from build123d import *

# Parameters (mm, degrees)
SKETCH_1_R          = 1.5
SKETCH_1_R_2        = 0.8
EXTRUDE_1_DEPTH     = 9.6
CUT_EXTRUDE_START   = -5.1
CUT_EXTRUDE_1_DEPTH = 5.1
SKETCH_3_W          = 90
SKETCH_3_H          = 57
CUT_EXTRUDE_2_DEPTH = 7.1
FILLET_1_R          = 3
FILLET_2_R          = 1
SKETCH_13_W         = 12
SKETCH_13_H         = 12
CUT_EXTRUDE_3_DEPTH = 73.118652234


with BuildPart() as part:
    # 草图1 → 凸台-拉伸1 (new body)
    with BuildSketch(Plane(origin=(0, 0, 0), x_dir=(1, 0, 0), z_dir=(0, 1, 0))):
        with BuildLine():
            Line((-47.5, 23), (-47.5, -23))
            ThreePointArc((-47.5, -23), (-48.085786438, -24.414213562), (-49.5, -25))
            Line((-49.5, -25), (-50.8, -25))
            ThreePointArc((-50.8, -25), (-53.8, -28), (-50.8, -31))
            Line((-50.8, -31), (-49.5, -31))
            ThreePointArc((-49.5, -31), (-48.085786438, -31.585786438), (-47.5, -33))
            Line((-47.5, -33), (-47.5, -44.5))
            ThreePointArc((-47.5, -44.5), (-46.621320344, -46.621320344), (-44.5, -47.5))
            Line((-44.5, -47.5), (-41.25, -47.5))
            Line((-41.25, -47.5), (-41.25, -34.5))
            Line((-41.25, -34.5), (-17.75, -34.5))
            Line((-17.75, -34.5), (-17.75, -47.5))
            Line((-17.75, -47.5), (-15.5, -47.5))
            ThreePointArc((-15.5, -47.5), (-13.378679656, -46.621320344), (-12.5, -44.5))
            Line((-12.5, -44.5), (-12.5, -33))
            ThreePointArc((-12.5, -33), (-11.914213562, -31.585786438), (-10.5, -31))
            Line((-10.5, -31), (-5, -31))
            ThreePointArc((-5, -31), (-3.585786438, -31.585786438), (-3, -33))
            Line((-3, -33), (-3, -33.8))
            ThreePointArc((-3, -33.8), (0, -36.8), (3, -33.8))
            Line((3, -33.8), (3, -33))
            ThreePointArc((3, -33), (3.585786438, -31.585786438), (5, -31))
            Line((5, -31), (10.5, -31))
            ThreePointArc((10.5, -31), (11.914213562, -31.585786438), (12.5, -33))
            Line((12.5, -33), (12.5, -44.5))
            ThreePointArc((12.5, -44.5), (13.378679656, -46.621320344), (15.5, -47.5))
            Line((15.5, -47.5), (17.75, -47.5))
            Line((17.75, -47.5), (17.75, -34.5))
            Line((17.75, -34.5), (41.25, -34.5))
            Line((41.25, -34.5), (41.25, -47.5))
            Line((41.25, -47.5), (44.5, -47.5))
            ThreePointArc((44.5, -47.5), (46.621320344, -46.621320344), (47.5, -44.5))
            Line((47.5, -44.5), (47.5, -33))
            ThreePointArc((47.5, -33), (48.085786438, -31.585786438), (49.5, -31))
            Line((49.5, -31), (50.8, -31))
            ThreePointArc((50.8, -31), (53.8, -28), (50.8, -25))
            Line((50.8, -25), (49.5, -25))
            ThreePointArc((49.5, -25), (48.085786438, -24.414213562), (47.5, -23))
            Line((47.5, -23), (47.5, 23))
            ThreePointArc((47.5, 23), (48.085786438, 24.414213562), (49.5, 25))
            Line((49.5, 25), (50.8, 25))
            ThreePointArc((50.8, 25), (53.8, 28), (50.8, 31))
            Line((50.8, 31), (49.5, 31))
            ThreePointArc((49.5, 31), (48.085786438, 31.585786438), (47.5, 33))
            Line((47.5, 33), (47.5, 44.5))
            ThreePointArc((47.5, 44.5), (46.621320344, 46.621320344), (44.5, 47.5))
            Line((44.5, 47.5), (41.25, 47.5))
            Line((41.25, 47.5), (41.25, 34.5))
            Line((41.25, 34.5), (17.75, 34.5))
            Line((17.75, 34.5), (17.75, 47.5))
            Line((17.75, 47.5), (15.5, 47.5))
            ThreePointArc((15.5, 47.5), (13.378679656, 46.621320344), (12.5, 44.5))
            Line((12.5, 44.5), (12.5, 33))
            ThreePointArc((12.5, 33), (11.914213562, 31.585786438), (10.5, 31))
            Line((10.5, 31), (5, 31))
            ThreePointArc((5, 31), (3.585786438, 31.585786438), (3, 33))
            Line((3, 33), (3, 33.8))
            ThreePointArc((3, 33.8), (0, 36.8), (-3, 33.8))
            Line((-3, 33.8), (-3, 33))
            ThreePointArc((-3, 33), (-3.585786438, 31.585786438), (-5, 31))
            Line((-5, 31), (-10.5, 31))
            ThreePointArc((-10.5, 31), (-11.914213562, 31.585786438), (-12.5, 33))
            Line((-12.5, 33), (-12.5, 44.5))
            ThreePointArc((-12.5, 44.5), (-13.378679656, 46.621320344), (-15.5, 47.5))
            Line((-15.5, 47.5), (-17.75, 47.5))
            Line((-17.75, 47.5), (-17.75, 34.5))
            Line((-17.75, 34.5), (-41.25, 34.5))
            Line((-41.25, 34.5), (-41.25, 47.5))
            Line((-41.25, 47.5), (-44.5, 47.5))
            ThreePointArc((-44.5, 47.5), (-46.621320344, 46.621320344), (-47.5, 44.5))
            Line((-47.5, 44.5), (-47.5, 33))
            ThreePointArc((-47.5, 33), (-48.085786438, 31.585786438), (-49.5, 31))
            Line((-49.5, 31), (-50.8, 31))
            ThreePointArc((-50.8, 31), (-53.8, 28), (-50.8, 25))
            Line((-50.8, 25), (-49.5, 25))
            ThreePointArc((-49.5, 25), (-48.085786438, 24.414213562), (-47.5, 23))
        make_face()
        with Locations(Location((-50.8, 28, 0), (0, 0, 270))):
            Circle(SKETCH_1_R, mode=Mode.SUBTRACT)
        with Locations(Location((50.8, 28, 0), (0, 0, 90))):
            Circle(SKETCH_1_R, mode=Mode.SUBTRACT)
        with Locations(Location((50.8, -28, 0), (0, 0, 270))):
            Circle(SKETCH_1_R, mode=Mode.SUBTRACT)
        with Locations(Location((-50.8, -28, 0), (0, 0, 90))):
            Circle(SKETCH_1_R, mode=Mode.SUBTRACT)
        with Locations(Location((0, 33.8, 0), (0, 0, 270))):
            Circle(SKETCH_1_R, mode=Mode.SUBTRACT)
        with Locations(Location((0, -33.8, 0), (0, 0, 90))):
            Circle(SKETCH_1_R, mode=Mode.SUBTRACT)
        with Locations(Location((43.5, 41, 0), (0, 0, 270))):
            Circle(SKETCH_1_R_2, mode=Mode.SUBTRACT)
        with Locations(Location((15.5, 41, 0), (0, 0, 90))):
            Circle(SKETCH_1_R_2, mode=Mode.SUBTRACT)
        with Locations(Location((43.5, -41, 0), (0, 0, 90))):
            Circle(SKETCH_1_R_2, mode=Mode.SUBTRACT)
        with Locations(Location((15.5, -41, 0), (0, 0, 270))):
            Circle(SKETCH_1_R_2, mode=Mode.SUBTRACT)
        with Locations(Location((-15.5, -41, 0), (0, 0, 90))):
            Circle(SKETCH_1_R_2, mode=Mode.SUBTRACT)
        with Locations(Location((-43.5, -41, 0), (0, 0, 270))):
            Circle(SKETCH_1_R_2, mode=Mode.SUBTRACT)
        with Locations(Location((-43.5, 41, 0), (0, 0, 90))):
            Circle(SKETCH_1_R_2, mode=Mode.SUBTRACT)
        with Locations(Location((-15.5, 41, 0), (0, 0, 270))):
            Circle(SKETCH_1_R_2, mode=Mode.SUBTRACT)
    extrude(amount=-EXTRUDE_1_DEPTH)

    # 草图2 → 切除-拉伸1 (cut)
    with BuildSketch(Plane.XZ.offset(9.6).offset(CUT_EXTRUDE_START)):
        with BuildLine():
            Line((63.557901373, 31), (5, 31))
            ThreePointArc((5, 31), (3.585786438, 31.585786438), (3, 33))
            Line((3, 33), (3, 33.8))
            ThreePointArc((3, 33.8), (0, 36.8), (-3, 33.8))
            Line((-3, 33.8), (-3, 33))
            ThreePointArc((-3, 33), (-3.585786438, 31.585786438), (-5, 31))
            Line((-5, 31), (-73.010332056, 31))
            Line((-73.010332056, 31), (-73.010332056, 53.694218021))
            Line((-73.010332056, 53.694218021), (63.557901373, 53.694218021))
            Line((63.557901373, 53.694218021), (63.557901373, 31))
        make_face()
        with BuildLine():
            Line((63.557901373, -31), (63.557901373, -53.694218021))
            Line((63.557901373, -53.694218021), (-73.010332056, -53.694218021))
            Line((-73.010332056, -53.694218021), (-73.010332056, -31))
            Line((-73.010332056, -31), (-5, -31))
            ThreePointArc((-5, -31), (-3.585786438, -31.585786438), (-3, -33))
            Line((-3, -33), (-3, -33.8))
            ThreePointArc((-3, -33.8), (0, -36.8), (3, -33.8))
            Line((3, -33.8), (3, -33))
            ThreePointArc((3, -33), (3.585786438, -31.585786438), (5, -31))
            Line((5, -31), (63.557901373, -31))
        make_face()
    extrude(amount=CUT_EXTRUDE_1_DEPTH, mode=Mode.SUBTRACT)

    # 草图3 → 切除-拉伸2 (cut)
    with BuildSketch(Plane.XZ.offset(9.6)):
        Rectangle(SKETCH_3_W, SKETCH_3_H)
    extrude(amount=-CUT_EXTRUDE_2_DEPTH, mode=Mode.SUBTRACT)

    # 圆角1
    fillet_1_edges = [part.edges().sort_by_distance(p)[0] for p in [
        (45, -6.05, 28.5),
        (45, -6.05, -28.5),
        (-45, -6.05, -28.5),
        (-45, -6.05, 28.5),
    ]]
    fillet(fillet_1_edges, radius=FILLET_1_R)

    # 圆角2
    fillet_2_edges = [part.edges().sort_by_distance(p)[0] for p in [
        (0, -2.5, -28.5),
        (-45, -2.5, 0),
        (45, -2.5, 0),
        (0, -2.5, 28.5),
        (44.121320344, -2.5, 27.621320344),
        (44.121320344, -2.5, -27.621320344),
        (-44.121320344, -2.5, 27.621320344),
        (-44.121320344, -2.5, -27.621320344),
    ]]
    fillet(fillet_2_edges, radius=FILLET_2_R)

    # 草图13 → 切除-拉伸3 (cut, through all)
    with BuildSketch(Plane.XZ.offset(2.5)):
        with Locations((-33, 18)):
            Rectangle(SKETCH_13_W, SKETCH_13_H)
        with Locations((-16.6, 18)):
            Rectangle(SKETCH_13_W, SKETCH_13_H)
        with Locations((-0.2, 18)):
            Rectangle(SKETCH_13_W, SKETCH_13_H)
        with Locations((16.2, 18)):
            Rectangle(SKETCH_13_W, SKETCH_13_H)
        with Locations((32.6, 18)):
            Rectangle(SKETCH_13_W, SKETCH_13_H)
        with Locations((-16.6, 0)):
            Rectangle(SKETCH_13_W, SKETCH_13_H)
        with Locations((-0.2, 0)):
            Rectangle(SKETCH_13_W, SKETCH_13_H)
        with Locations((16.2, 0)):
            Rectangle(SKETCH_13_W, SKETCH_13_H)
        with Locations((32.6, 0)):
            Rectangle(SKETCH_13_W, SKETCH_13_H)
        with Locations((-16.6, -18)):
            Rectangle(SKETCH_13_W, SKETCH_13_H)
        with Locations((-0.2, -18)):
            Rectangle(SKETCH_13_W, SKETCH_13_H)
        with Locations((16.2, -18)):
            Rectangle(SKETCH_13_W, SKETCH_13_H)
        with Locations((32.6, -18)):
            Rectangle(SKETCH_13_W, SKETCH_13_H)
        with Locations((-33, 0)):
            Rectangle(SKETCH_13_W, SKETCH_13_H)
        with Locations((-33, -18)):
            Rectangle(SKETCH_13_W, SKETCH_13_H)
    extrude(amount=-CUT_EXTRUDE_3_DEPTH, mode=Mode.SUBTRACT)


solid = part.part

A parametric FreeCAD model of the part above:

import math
import FreeCAD as App
import Part
import Sketcher
Q = App.Units.Quantity


def edges_at(feature, points):
    """Names of the edges that pass closest to the given points."""
    edges = feature.Shape.Edges
    near = lambda p: min(range(len(edges)), key=lambda i: edges[i].distToShape(Part.Vertex(*p))[0])
    return sorted({f"Edge{near(p) + 1}" for p in points})


def add_polygon(sketch, points):
    """Adds a closed chain of lines whose ends are joined by coincident constraints."""
    first, n = sketch.GeometryCount, len(points)
    for a, b in zip(points, points[1:] + points[:1]):
        sketch.addGeometry(Part.LineSegment(App.Vector(*a, 0), App.Vector(*b, 0)), False)
    for i in range(n):
        sketch.addConstraint(Sketcher.Constraint("Coincident", first + i, 2, first + (i + 1) % n, 1))

doc = App.newDocument("Part")
body = doc.addObject("PartDesign::Body", "Body")

# Sketch on XZ plane
sketch1 = body.newObject("Sketcher::SketchObject", "Sketch")
sketch1.AttachmentSupport = (doc.getObject("XZ_Plane"), [""])
sketch1.MapMode = "FlatFace"
sketch1.addGeometry(Part.LineSegment(App.Vector(-47.5, -23, 0), App.Vector(-47.5, 23, 0)), False)
sketch1.addGeometry(Part.ArcOfCircle(Part.Circle(App.Vector(-49.5, 23, 0), App.Vector(0, 0, 1), 2), math.radians(0), math.radians(90)), False)
sketch1.addGeometry(Part.LineSegment(App.Vector(-49.5, 25, 0), App.Vector(-50.8, 25, 0)), False)
sketch1.addGeometry(Part.ArcOfCircle(Part.Circle(App.Vector(-50.8, 28, 0), App.Vector(0, 0, 1), 3), math.radians(90), math.radians(270)), False)
sketch1.addGeometry(Part.LineSegment(App.Vector(-50.8, 31, 0), App.Vector(-49.5, 31, 0)), False)
sketch1.addGeometry(Part.ArcOfCircle(Part.Circle(App.Vector(-49.5, 33, 0), App.Vector(0, 0, 1), 2), math.radians(-90), math.radians(0)), False)
sketch1.addGeometry(Part.LineSegment(App.Vector(-47.5, 33, 0), App.Vector(-47.5, 44.5, 0)), False)
sketch1.addGeometry(Part.ArcOfCircle(Part.Circle(App.Vector(-44.5, 44.5, 0), App.Vector(0, 0, 1), 3), math.radians(90), math.radians(180)), False)
sketch1.addGeometry(Part.LineSegment(App.Vector(-44.5, 47.5, 0), App.Vector(-41.2, 47.5, 0)), False)
sketch1.addGeometry(Part.LineSegment(App.Vector(-41.2, 47.5, 0), App.Vector(-41.2, 34.5, 0)), False)
sketch1.addGeometry(Part.LineSegment(App.Vector(-41.2, 34.5, 0), App.Vector(-17.8, 34.5, 0)), False)
sketch1.addGeometry(Part.LineSegment(App.Vector(-17.8, 34.5, 0), App.Vector(-17.8, 47.5, 0)), False)
sketch1.addGeometry(Part.LineSegment(App.Vector(-17.8, 47.5, 0), App.Vector(-15.5, 47.5, 0)), False)
sketch1.addGeometry(Part.ArcOfCircle(Part.Circle(App.Vector(-15.5, 44.5, 0), App.Vector(0, 0, 1), 3), math.radians(0), math.radians(90)), False)
sketch1.addGeometry(Part.LineSegment(App.Vector(-12.5, 44.5, 0), App.Vector(-12.5, 33, 0)), False)
sketch1.addGeometry(Part.ArcOfCircle(Part.Circle(App.Vector(-10.5, 33, 0), App.Vector(0, 0, 1), 2), math.radians(-180), math.radians(-90)), False)
sketch1.addGeometry(Part.LineSegment(App.Vector(-10.5, 31, 0), App.Vector(-5, 31, 0)), False)
sketch1.addGeometry(Part.ArcOfCircle(Part.Circle(App.Vector(-5, 33, 0), App.Vector(0, 0, 1), 2), math.radians(-90), math.radians(0)), False)
sketch1.addGeometry(Part.LineSegment(App.Vector(-3, 33, 0), App.Vector(-3, 33.8, 0)), False)
sketch1.addGeometry(Part.ArcOfCircle(Part.Circle(App.Vector(0, 33.8, 0), App.Vector(0, 0, 1), 3), math.radians(0), math.radians(180)), False)
sketch1.addGeometry(Part.LineSegment(App.Vector(3, 33.8, 0), App.Vector(3, 33, 0)), False)
sketch1.addGeometry(Part.ArcOfCircle(Part.Circle(App.Vector(5, 33, 0), App.Vector(0, 0, 1), 2), math.radians(-180), math.radians(-90)), False)
sketch1.addGeometry(Part.LineSegment(App.Vector(5, 31, 0), App.Vector(10.5, 31, 0)), False)
sketch1.addGeometry(Part.ArcOfCircle(Part.Circle(App.Vector(10.5, 33, 0), App.Vector(0, 0, 1), 2), math.radians(-90), math.radians(0)), False)
sketch1.addGeometry(Part.LineSegment(App.Vector(12.5, 33, 0), App.Vector(12.5, 44.5, 0)), False)
sketch1.addGeometry(Part.ArcOfCircle(Part.Circle(App.Vector(15.5, 44.5, 0), App.Vector(0, 0, 1), 3), math.radians(90), math.radians(180)), False)
sketch1.addGeometry(Part.LineSegment(App.Vector(15.5, 47.5, 0), App.Vector(17.8, 47.5, 0)), False)
sketch1.addGeometry(Part.LineSegment(App.Vector(17.8, 47.5, 0), App.Vector(17.8, 34.5, 0)), False)
sketch1.addGeometry(Part.LineSegment(App.Vector(17.8, 34.5, 0), App.Vector(41.2, 34.5, 0)), False)
sketch1.addGeometry(Part.LineSegment(App.Vector(41.2, 34.5, 0), App.Vector(41.2, 47.5, 0)), False)
sketch1.addGeometry(Part.LineSegment(App.Vector(41.2, 47.5, 0), App.Vector(44.5, 47.5, 0)), False)
sketch1.addGeometry(Part.ArcOfCircle(Part.Circle(App.Vector(44.5, 44.5, 0), App.Vector(0, 0, 1), 3), math.radians(0), math.radians(90)), False)
sketch1.addGeometry(Part.LineSegment(App.Vector(47.5, 44.5, 0), App.Vector(47.5, 33, 0)), False)
sketch1.addGeometry(Part.ArcOfCircle(Part.Circle(App.Vector(49.5, 33, 0), App.Vector(0, 0, 1), 2), math.radians(-180), math.radians(-90)), False)
sketch1.addGeometry(Part.LineSegment(App.Vector(49.5, 31, 0), App.Vector(50.8, 31, 0)), False)
sketch1.addGeometry(Part.ArcOfCircle(Part.Circle(App.Vector(50.8, 28, 0), App.Vector(0, 0, 1), 3), math.radians(-90), math.radians(90)), False)
sketch1.addGeometry(Part.LineSegment(App.Vector(50.8, 25, 0), App.Vector(49.5, 25, 0)), False)
sketch1.addGeometry(Part.ArcOfCircle(Part.Circle(App.Vector(49.5, 23, 0), App.Vector(0, 0, 1), 2), math.radians(90), math.radians(180)), False)
sketch1.addGeometry(Part.LineSegment(App.Vector(47.5, 23, 0), App.Vector(47.5, -23, 0)), False)
sketch1.addGeometry(Part.ArcOfCircle(Part.Circle(App.Vector(49.5, -23, 0), App.Vector(0, 0, 1), 2), math.radians(-180), math.radians(-90)), False)
sketch1.addGeometry(Part.LineSegment(App.Vector(49.5, -25, 0), App.Vector(50.8, -25, 0)), False)
sketch1.addGeometry(Part.ArcOfCircle(Part.Circle(App.Vector(50.8, -28, 0), App.Vector(0, 0, 1), 3), math.radians(-90), math.radians(90)), False)
sketch1.addGeometry(Part.LineSegment(App.Vector(50.8, -31, 0), App.Vector(49.5, -31, 0)), False)
sketch1.addGeometry(Part.ArcOfCircle(Part.Circle(App.Vector(49.5, -33, 0), App.Vector(0, 0, 1), 2), math.radians(90), math.radians(180)), False)
sketch1.addGeometry(Part.LineSegment(App.Vector(47.5, -33, 0), App.Vector(47.5, -44.5, 0)), False)
sketch1.addGeometry(Part.ArcOfCircle(Part.Circle(App.Vector(44.5, -44.5, 0), App.Vector(0, 0, 1), 3), math.radians(-90), math.radians(0)), False)
sketch1.addGeometry(Part.LineSegment(App.Vector(44.5, -47.5, 0), App.Vector(41.2, -47.5, 0)), False)
sketch1.addGeometry(Part.LineSegment(App.Vector(41.2, -47.5, 0), App.Vector(41.2, -34.5, 0)), False)
sketch1.addGeometry(Part.LineSegment(App.Vector(41.2, -34.5, 0), App.Vector(17.8, -34.5, 0)), False)
sketch1.addGeometry(Part.LineSegment(App.Vector(17.8, -34.5, 0), App.Vector(17.8, -47.5, 0)), False)
sketch1.addGeometry(Part.LineSegment(App.Vector(17.8, -47.5, 0), App.Vector(15.5, -47.5, 0)), False)
sketch1.addGeometry(Part.ArcOfCircle(Part.Circle(App.Vector(15.5, -44.5, 0), App.Vector(0, 0, 1), 3), math.radians(180), math.radians(270)), False)
sketch1.addGeometry(Part.LineSegment(App.Vector(12.5, -44.5, 0), App.Vector(12.5, -33, 0)), False)
sketch1.addGeometry(Part.ArcOfCircle(Part.Circle(App.Vector(10.5, -33, 0), App.Vector(0, 0, 1), 2), math.radians(0), math.radians(90)), False)
sketch1.addGeometry(Part.LineSegment(App.Vector(10.5, -31, 0), App.Vector(5, -31, 0)), False)
sketch1.addGeometry(Part.ArcOfCircle(Part.Circle(App.Vector(5, -33, 0), App.Vector(0, 0, 1), 2), math.radians(90), math.radians(180)), False)
sketch1.addGeometry(Part.LineSegment(App.Vector(3, -33, 0), App.Vector(3, -33.8, 0)), False)
sketch1.addGeometry(Part.ArcOfCircle(Part.Circle(App.Vector(0, -33.8, 0), App.Vector(0, 0, 1), 3), math.radians(180), math.radians(360)), False)
sketch1.addGeometry(Part.LineSegment(App.Vector(-3, -33.8, 0), App.Vector(-3, -33, 0)), False)
sketch1.addGeometry(Part.ArcOfCircle(Part.Circle(App.Vector(-5, -33, 0), App.Vector(0, 0, 1), 2), math.radians(0), math.radians(90)), False)
sketch1.addGeometry(Part.LineSegment(App.Vector(-5, -31, 0), App.Vector(-10.5, -31, 0)), False)
sketch1.addGeometry(Part.ArcOfCircle(Part.Circle(App.Vector(-10.5, -33, 0), App.Vector(0, 0, 1), 2), math.radians(90), math.radians(180)), False)
sketch1.addGeometry(Part.LineSegment(App.Vector(-12.5, -33, 0), App.Vector(-12.5, -44.5, 0)), False)
sketch1.addGeometry(Part.ArcOfCircle(Part.Circle(App.Vector(-15.5, -44.5, 0), App.Vector(0, 0, 1), 3), math.radians(-90), math.radians(0)), False)
sketch1.addGeometry(Part.LineSegment(App.Vector(-15.5, -47.5, 0), App.Vector(-17.8, -47.5, 0)), False)
sketch1.addGeometry(Part.LineSegment(App.Vector(-17.8, -47.5, 0), App.Vector(-17.8, -34.5, 0)), False)
sketch1.addGeometry(Part.LineSegment(App.Vector(-17.8, -34.5, 0), App.Vector(-41.2, -34.5, 0)), False)
sketch1.addGeometry(Part.LineSegment(App.Vector(-41.2, -34.5, 0), App.Vector(-41.2, -47.5, 0)), False)
sketch1.addGeometry(Part.LineSegment(App.Vector(-41.2, -47.5, 0), App.Vector(-44.5, -47.5, 0)), False)
sketch1.addGeometry(Part.ArcOfCircle(Part.Circle(App.Vector(-44.5, -44.5, 0), App.Vector(0, 0, 1), 3), math.radians(180), math.radians(270)), False)
sketch1.addGeometry(Part.LineSegment(App.Vector(-47.5, -44.5, 0), App.Vector(-47.5, -33, 0)), False)
sketch1.addGeometry(Part.ArcOfCircle(Part.Circle(App.Vector(-49.5, -33, 0), App.Vector(0, 0, 1), 2), math.radians(0), math.radians(90)), False)
sketch1.addGeometry(Part.LineSegment(App.Vector(-49.5, -31, 0), App.Vector(-50.8, -31, 0)), False)
sketch1.addGeometry(Part.ArcOfCircle(Part.Circle(App.Vector(-50.8, -28, 0), App.Vector(0, 0, 1), 3), math.radians(90), math.radians(270)), False)
sketch1.addGeometry(Part.LineSegment(App.Vector(-50.8, -25, 0), App.Vector(-49.5, -25, 0)), False)
sketch1.addGeometry(Part.ArcOfCircle(Part.Circle(App.Vector(-49.5, -23, 0), App.Vector(0, 0, 1), 2), math.radians(-90), math.radians(0)), False)
sketch1.addGeometry(Part.Circle(App.Vector(-43.5, 41, 0), App.Vector(0, 0, 1), 0.8), False)
sketch1.addGeometry(Part.Circle(App.Vector(-50.8, 28, 0), App.Vector(0, 0, 1), 1.5), False)
sketch1.addGeometry(Part.Circle(App.Vector(-15.5, 41, 0), App.Vector(0, 0, 1), 0.8), False)
sketch1.addGeometry(Part.Circle(App.Vector(0, 33.8, 0), App.Vector(0, 0, 1), 1.5), False)
sketch1.addGeometry(Part.Circle(App.Vector(15.5, 41, 0), App.Vector(0, 0, 1), 0.8), False)
sketch1.addGeometry(Part.Circle(App.Vector(43.5, 41, 0), App.Vector(0, 0, 1), 0.8), False)
sketch1.addGeometry(Part.Circle(App.Vector(50.8, 28, 0), App.Vector(0, 0, 1), 1.5), False)
sketch1.addGeometry(Part.Circle(App.Vector(-50.8, -28, 0), App.Vector(0, 0, 1), 1.5), False)
sketch1.addGeometry(Part.Circle(App.Vector(-43.5, -41, 0), App.Vector(0, 0, 1), 0.8), False)
sketch1.addGeometry(Part.Circle(App.Vector(-15.5, -41, 0), App.Vector(0, 0, 1), 0.8), False)
sketch1.addGeometry(Part.Circle(App.Vector(0, -33.8, 0), App.Vector(0, 0, 1), 1.5), False)
sketch1.addGeometry(Part.Circle(App.Vector(15.5, -41, 0), App.Vector(0, 0, 1), 0.8), False)
sketch1.addGeometry(Part.Circle(App.Vector(50.8, -28, 0), App.Vector(0, 0, 1), 1.5), False)
sketch1.addGeometry(Part.Circle(App.Vector(43.5, -41, 0), App.Vector(0, 0, 1), 0.8), False)
sketch1.addConstraint(Sketcher.Constraint("Tangent", 0, 2, 1, 1))
sketch1.addConstraint(Sketcher.Constraint("Tangent", 1, 2, 2, 1))
sketch1.addConstraint(Sketcher.Constraint("Tangent", 2, 2, 3, 2))
sketch1.addConstraint(Sketcher.Constraint("Tangent", 3, 1, 4, 1))
sketch1.addConstraint(Sketcher.Constraint("Tangent", 4, 2, 5, 1))
sketch1.addConstraint(Sketcher.Constraint("Tangent", 5, 2, 6, 1))
sketch1.addConstraint(Sketcher.Constraint("Tangent", 6, 2, 7, 2))
sketch1.addConstraint(Sketcher.Constraint("Tangent", 7, 1, 8, 1))
sketch1.addConstraint(Sketcher.Constraint("Coincident", 8, 2, 9, 1))
sketch1.addConstraint(Sketcher.Constraint("Coincident", 9, 2, 10, 1))
sketch1.addConstraint(Sketcher.Constraint("Coincident", 10, 2, 11, 1))
sketch1.addConstraint(Sketcher.Constraint("Coincident", 11, 2, 12, 1))
sketch1.addConstraint(Sketcher.Constraint("Tangent", 12, 2, 13, 2))
sketch1.addConstraint(Sketcher.Constraint("Tangent", 13, 1, 14, 1))
sketch1.addConstraint(Sketcher.Constraint("Tangent", 14, 2, 15, 1))
sketch1.addConstraint(Sketcher.Constraint("Tangent", 15, 2, 16, 1))
sketch1.addConstraint(Sketcher.Constraint("Tangent", 16, 2, 17, 1))
sketch1.addConstraint(Sketcher.Constraint("Tangent", 17, 2, 18, 1))
sketch1.addConstraint(Sketcher.Constraint("Tangent", 18, 2, 19, 2))
sketch1.addConstraint(Sketcher.Constraint("Tangent", 19, 1, 20, 1))
sketch1.addConstraint(Sketcher.Constraint("Tangent", 20, 2, 21, 1))
sketch1.addConstraint(Sketcher.Constraint("Tangent", 21, 2, 22, 1))
sketch1.addConstraint(Sketcher.Constraint("Tangent", 22, 2, 23, 1))
sketch1.addConstraint(Sketcher.Constraint("Tangent", 23, 2, 24, 1))
sketch1.addConstraint(Sketcher.Constraint("Tangent", 24, 2, 25, 2))
sketch1.addConstraint(Sketcher.Constraint("Tangent", 25, 1, 26, 1))
sketch1.addConstraint(Sketcher.Constraint("Coincident", 26, 2, 27, 1))
sketch1.addConstraint(Sketcher.Constraint("Coincident", 27, 2, 28, 1))
sketch1.addConstraint(Sketcher.Constraint("Coincident", 28, 2, 29, 1))
sketch1.addConstraint(Sketcher.Constraint("Coincident", 29, 2, 30, 1))
sketch1.addConstraint(Sketcher.Constraint("Tangent", 30, 2, 31, 2))
sketch1.addConstraint(Sketcher.Constraint("Tangent", 31, 1, 32, 1))
sketch1.addConstraint(Sketcher.Constraint("Tangent", 32, 2, 33, 1))
sketch1.addConstraint(Sketcher.Constraint("Tangent", 33, 2, 34, 1))
sketch1.addConstraint(Sketcher.Constraint("Tangent", 34, 2, 35, 2))
sketch1.addConstraint(Sketcher.Constraint("Tangent", 35, 1, 36, 1))
sketch1.addConstraint(Sketcher.Constraint("Tangent", 36, 2, 37, 1))
sketch1.addConstraint(Sketcher.Constraint("Tangent", 37, 2, 38, 1))
sketch1.addConstraint(Sketcher.Constraint("Tangent", 38, 2, 39, 1))
sketch1.addConstraint(Sketcher.Constraint("Tangent", 39, 2, 40, 1))
sketch1.addConstraint(Sketcher.Constraint("Tangent", 40, 2, 41, 2))
sketch1.addConstraint(Sketcher.Constraint("Tangent", 41, 1, 42, 1))
sketch1.addConstraint(Sketcher.Constraint("Tangent", 42, 2, 43, 1))
sketch1.addConstraint(Sketcher.Constraint("Tangent", 43, 2, 44, 1))
sketch1.addConstraint(Sketcher.Constraint("Tangent", 44, 2, 45, 2))
sketch1.addConstraint(Sketcher.Constraint("Tangent", 45, 1, 46, 1))
sketch1.addConstraint(Sketcher.Constraint("Coincident", 46, 2, 47, 1))
sketch1.addConstraint(Sketcher.Constraint("Coincident", 47, 2, 48, 1))
sketch1.addConstraint(Sketcher.Constraint("Coincident", 48, 2, 49, 1))
sketch1.addConstraint(Sketcher.Constraint("Coincident", 49, 2, 50, 1))
sketch1.addConstraint(Sketcher.Constraint("Tangent", 50, 2, 51, 2))
sketch1.addConstraint(Sketcher.Constraint("Tangent", 51, 1, 52, 1))
sketch1.addConstraint(Sketcher.Constraint("Tangent", 52, 2, 53, 1))
sketch1.addConstraint(Sketcher.Constraint("Tangent", 53, 2, 54, 1))
sketch1.addConstraint(Sketcher.Constraint("Tangent", 54, 2, 55, 1))
sketch1.addConstraint(Sketcher.Constraint("Tangent", 55, 2, 56, 1))
sketch1.addConstraint(Sketcher.Constraint("Tangent", 56, 2, 57, 2))
sketch1.addConstraint(Sketcher.Constraint("Tangent", 57, 1, 58, 1))
sketch1.addConstraint(Sketcher.Constraint("Tangent", 58, 2, 59, 1))
sketch1.addConstraint(Sketcher.Constraint("Tangent", 59, 2, 60, 1))
sketch1.addConstraint(Sketcher.Constraint("Tangent", 60, 2, 61, 1))
sketch1.addConstraint(Sketcher.Constraint("Tangent", 61, 2, 62, 1))
sketch1.addConstraint(Sketcher.Constraint("Tangent", 62, 2, 63, 2))
sketch1.addConstraint(Sketcher.Constraint("Tangent", 63, 1, 64, 1))
sketch1.addConstraint(Sketcher.Constraint("Coincident", 64, 2, 65, 1))
sketch1.addConstraint(Sketcher.Constraint("Coincident", 65, 2, 66, 1))
sketch1.addConstraint(Sketcher.Constraint("Coincident", 66, 2, 67, 1))
sketch1.addConstraint(Sketcher.Constraint("Coincident", 67, 2, 68, 1))
sketch1.addConstraint(Sketcher.Constraint("Tangent", 68, 2, 69, 2))
sketch1.addConstraint(Sketcher.Constraint("Tangent", 69, 1, 70, 1))
sketch1.addConstraint(Sketcher.Constraint("Tangent", 70, 2, 71, 1))
sketch1.addConstraint(Sketcher.Constraint("Tangent", 71, 2, 72, 1))
sketch1.addConstraint(Sketcher.Constraint("Tangent", 72, 2, 73, 2))
sketch1.addConstraint(Sketcher.Constraint("Tangent", 73, 1, 74, 1))
sketch1.addConstraint(Sketcher.Constraint("Tangent", 74, 2, 75, 1))
sketch1.addConstraint(Sketcher.Constraint("Tangent", 75, 2, 0, 1))
sketch1.addConstraint(Sketcher.Constraint("Vertical", 0))
sketch1.addConstraint(Sketcher.Constraint("Horizontal", 2))
sketch1.addConstraint(Sketcher.Constraint("Horizontal", 4))
sketch1.addConstraint(Sketcher.Constraint("Vertical", 6))
sketch1.addConstraint(Sketcher.Constraint("Horizontal", 8))
sketch1.addConstraint(Sketcher.Constraint("Vertical", 9))
sketch1.addConstraint(Sketcher.Constraint("Horizontal", 10))
sketch1.addConstraint(Sketcher.Constraint("Vertical", 11))
sketch1.addConstraint(Sketcher.Constraint("Horizontal", 12))
sketch1.addConstraint(Sketcher.Constraint("Vertical", 14))
sketch1.addConstraint(Sketcher.Constraint("Horizontal", 16))
sketch1.addConstraint(Sketcher.Constraint("Vertical", 18))
sketch1.addConstraint(Sketcher.Constraint("Vertical", 20))
sketch1.addConstraint(Sketcher.Constraint("Horizontal", 22))
sketch1.addConstraint(Sketcher.Constraint("Vertical", 24))
sketch1.addConstraint(Sketcher.Constraint("Horizontal", 26))
sketch1.addConstraint(Sketcher.Constraint("Vertical", 27))
sketch1.addConstraint(Sketcher.Constraint("Horizontal", 28))
sketch1.addConstraint(Sketcher.Constraint("Vertical", 29))
sketch1.addConstraint(Sketcher.Constraint("Horizontal", 30))
sketch1.addConstraint(Sketcher.Constraint("Vertical", 32))
sketch1.addConstraint(Sketcher.Constraint("Horizontal", 34))
sketch1.addConstraint(Sketcher.Constraint("Horizontal", 36))
sketch1.addConstraint(Sketcher.Constraint("Vertical", 38))
sketch1.addConstraint(Sketcher.Constraint("Horizontal", 40))
sketch1.addConstraint(Sketcher.Constraint("Horizontal", 42))
sketch1.addConstraint(Sketcher.Constraint("Vertical", 44))
sketch1.addConstraint(Sketcher.Constraint("Horizontal", 46))
sketch1.addConstraint(Sketcher.Constraint("Vertical", 47))
sketch1.addConstraint(Sketcher.Constraint("Horizontal", 48))
sketch1.addConstraint(Sketcher.Constraint("Vertical", 49))
sketch1.addConstraint(Sketcher.Constraint("Horizontal", 50))
sketch1.addConstraint(Sketcher.Constraint("Vertical", 52))
sketch1.addConstraint(Sketcher.Constraint("Horizontal", 54))
sketch1.addConstraint(Sketcher.Constraint("Vertical", 56))
sketch1.addConstraint(Sketcher.Constraint("Vertical", 58))
sketch1.addConstraint(Sketcher.Constraint("Horizontal", 60))
sketch1.addConstraint(Sketcher.Constraint("Vertical", 62))
sketch1.addConstraint(Sketcher.Constraint("Horizontal", 64))
sketch1.addConstraint(Sketcher.Constraint("Vertical", 65))
sketch1.addConstraint(Sketcher.Constraint("Horizontal", 66))
sketch1.addConstraint(Sketcher.Constraint("Vertical", 67))
sketch1.addConstraint(Sketcher.Constraint("Horizontal", 68))
sketch1.addConstraint(Sketcher.Constraint("Vertical", 70))
sketch1.addConstraint(Sketcher.Constraint("Horizontal", 72))
sketch1.addConstraint(Sketcher.Constraint("Horizontal", 74))
sketch1.addConstraint(Sketcher.Constraint("Coincident", 77, 3, 3, 3))
sketch1.addConstraint(Sketcher.Constraint("Coincident", 79, 3, 19, 3))
sketch1.addConstraint(Sketcher.Constraint("Coincident", 82, 3, 35, 3))
sketch1.addConstraint(Sketcher.Constraint("Coincident", 83, 3, 73, 3))
sketch1.addConstraint(Sketcher.Constraint("Coincident", 86, 3, 57, 3))
sketch1.addConstraint(Sketcher.Constraint("Coincident", 88, 3, 41, 3))
sketch1.addConstraint(Sketcher.Constraint("Equal", 1, 5))
sketch1.addConstraint(Sketcher.Constraint("Equal", 3, 7))
sketch1.addConstraint(Sketcher.Constraint("Equal", 7, 13))
sketch1.addConstraint(Sketcher.Constraint("Equal", 5, 15))
sketch1.addConstraint(Sketcher.Constraint("Equal", 15, 17))
sketch1.addConstraint(Sketcher.Constraint("Equal", 13, 19))
sketch1.addConstraint(Sketcher.Constraint("Equal", 17, 21))
sketch1.addConstraint(Sketcher.Constraint("Equal", 21, 23))
sketch1.addConstraint(Sketcher.Constraint("Equal", 19, 25))
sketch1.addConstraint(Sketcher.Constraint("Equal", 25, 31))
sketch1.addConstraint(Sketcher.Constraint("Equal", 23, 33))
sketch1.addConstraint(Sketcher.Constraint("Equal", 31, 35))
sketch1.addConstraint(Sketcher.Constraint("Equal", 33, 37))
sketch1.addConstraint(Sketcher.Constraint("Equal", 37, 39))
sketch1.addConstraint(Sketcher.Constraint("Equal", 35, 41))
sketch1.addConstraint(Sketcher.Constraint("Equal", 39, 43))
sketch1.addConstraint(Sketcher.Constraint("Equal", 41, 45))
sketch1.addConstraint(Sketcher.Constraint("Equal", 45, 51))
sketch1.addConstraint(Sketcher.Constraint("Equal", 43, 53))
sketch1.addConstraint(Sketcher.Constraint("Equal", 53, 55))
sketch1.addConstraint(Sketcher.Constraint("Equal", 51, 57))
sketch1.addConstraint(Sketcher.Constraint("Equal", 55, 59))
sketch1.addConstraint(Sketcher.Constraint("Equal", 59, 61))
sketch1.addConstraint(Sketcher.Constraint("Equal", 57, 63))
sketch1.addConstraint(Sketcher.Constraint("Equal", 63, 69))
sketch1.addConstraint(Sketcher.Constraint("Equal", 61, 71))
sketch1.addConstraint(Sketcher.Constraint("Equal", 69, 73))
sketch1.addConstraint(Sketcher.Constraint("Equal", 71, 75))
sketch1.addConstraint(Sketcher.Constraint("Equal", 76, 78))
sketch1.addConstraint(Sketcher.Constraint("Equal", 77, 79))
sketch1.addConstraint(Sketcher.Constraint("Equal", 78, 80))
sketch1.addConstraint(Sketcher.Constraint("Equal", 80, 81))
sketch1.addConstraint(Sketcher.Constraint("Equal", 79, 82))
sketch1.addConstraint(Sketcher.Constraint("Equal", 82, 83))
sketch1.addConstraint(Sketcher.Constraint("Equal", 81, 84))
sketch1.addConstraint(Sketcher.Constraint("Equal", 84, 85))
sketch1.addConstraint(Sketcher.Constraint("Equal", 83, 86))
sketch1.addConstraint(Sketcher.Constraint("Equal", 85, 87))
sketch1.addConstraint(Sketcher.Constraint("Equal", 86, 88))
sketch1.addConstraint(Sketcher.Constraint("Equal", 87, 89))
sketch1.addConstraint(Sketcher.Constraint("Symmetric", 1, 3, 39, 3, -1, 1))
sketch1.addConstraint(Sketcher.Constraint("Symmetric", 7, 3, 45, 3, -1, 1))
sketch1.addConstraint(Sketcher.Constraint("Symmetric", 13, 3, 51, 3, -1, 1))
sketch1.addConstraint(Sketcher.Constraint("Symmetric", 17, 3, 55, 3, -1, 1))
sketch1.addConstraint(Sketcher.Constraint("Symmetric", 23, 3, 61, 3, -1, 1))
sketch1.addConstraint(Sketcher.Constraint("Symmetric", 31, 3, 69, 3, -1, 1))
sketch1.addConstraint(Sketcher.Constraint("Symmetric", 35, 3, 73, 3, -1, 1))
sketch1.addConstraint(Sketcher.Constraint("Symmetric", 81, 3, 84, 3, -1, 1))
sketch1.addConstraint(Sketcher.Constraint("Symmetric", 80, 3, 85, 3, -1, 1))
sketch1.addConstraint(Sketcher.Constraint("Symmetric", 78, 3, 87, 3, -1, 1))
sketch1.addConstraint(Sketcher.Constraint("Symmetric", 76, 3, 89, 3, -1, 1))
sketch1.addConstraint(Sketcher.Constraint("Symmetric", 9, 2, 47, 2, -1, 1))
sketch1.addConstraint(Sketcher.Constraint("Symmetric", 26, 2, 64, 2, -1, 1))
sketch1.addConstraint(Sketcher.Constraint("Symmetric", 28, 2, 66, 2, -1, 1))
sketch1.addConstraint(Sketcher.Constraint("Symmetric", 17, 3, 21, 3, -2))
sketch1.addConstraint(Sketcher.Constraint("Symmetric", 13, 3, 25, 3, -2))
sketch1.addConstraint(Sketcher.Constraint("Symmetric", 7, 3, 31, 3, -2))
sketch1.addConstraint(Sketcher.Constraint("Symmetric", 3, 3, 35, 3, -2))
sketch1.addConstraint(Sketcher.Constraint("Symmetric", 78, 3, 80, 3, -2))
sketch1.addConstraint(Sketcher.Constraint("Symmetric", 76, 3, 81, 3, -2))
sketch1.addConstraint(Sketcher.Constraint("Symmetric", 10, 2, 27, 2, -2))
sketch1.addConstraint(Sketcher.Constraint("Horizontal", 7, 3, 13, 3))
sketch1.addConstraint(Sketcher.Constraint("Horizontal", 5, 3, 15, 3))
sketch1.addConstraint(Sketcher.Constraint("Horizontal", 76, 3, 78, 3))
sketch1.addConstraint(Sketcher.Constraint("Vertical", 1, 3, 5, 3))
sketch1.addConstraint(Sketcher.Constraint("Vertical", 35, 3, 41, 3))
sketch1.addConstraint(Sketcher.Constraint("Vertical", 63, 3, 78, 3))
sketch1.addConstraint(Sketcher.Constraint("Vertical", 29, 2, 46, 2))
sketch1.addConstraint(Sketcher.Constraint("Vertical", 27, 2, 48, 2))
sketch1.addConstraint(Sketcher.Constraint("Equal", 20, 56))
sketch1.addConstraint(Sketcher.Constraint("Diameter", 77, Q("3 mm")))
sketch1.addConstraint(Sketcher.Constraint("Radius", 1, Q("2 mm")))
sketch1.addConstraint(Sketcher.Constraint("Radius", 3, Q("3 mm")))
sketch1.addConstraint(Sketcher.Constraint("Diameter", 76, Q("1.6 mm")))
sketch1.addConstraint(Sketcher.Constraint("DistanceY", 0, 1, 0, 2, Q("46 mm")))
sketch1.addConstraint(Sketcher.Constraint("DistanceY", 9, 2, 9, 1, Q("13 mm")))
sketch1.addConstraint(Sketcher.Constraint("DistanceX", 2, 2, 2, 1, Q("1.3 mm")))
sketch1.addConstraint(Sketcher.Constraint("DistanceX", 10, 1, 10, 2, Q("23.5 mm")))
sketch1.addConstraint(Sketcher.Constraint("DistanceX", 16, 1, 16, 2, Q("5.5 mm")))
sketch1.addConstraint(Sketcher.Constraint("DistanceY", 6, 1, 6, 2, Q("11.5 mm")))
sketch1.addConstraint(Sketcher.Constraint("DistanceY", 18, 1, 18, 2, Q("0.8 mm")))
sketch1.addConstraint(Sketcher.Constraint("DistanceY", -1, 1, 76, 3, Q("41 mm")))
sketch1.addConstraint(Sketcher.Constraint("DistanceX", 8, 1, 8, 2, Q("3.25 mm")))
sketch1.addConstraint(Sketcher.Constraint("DistanceX", 12, 1, 12, 2, Q("2.25 mm")))
sketch1.addConstraint(Sketcher.Constraint("DistanceX", 76, 3, -1, 1, Q("43.5 mm")))
pad1 = body.newObject("PartDesign::Pad", "Pad")
pad1.Profile = sketch1
pad1.Length = 9.6

# Sketch on XZ plane
sketch2 = body.newObject("Sketcher::SketchObject", "Sketch001")
sketch2.AttachmentSupport = (doc.getObject("XZ_Plane"), [""])
sketch2.MapMode = "FlatFace"
sketch2.AttachmentOffset = App.Placement(App.Vector(0, 0, 4.5), App.Rotation())
sketch2.addGeometry(Part.LineSegment(App.Vector(5, 31, 0), App.Vector(63.6, 31, 0)), False)
sketch2.addGeometry(Part.LineSegment(App.Vector(63.6, 31, 0), App.Vector(63.6, 53.7, 0)), False)
sketch2.addGeometry(Part.LineSegment(App.Vector(63.6, 53.7, 0), App.Vector(-73, 53.7, 0)), False)
sketch2.addGeometry(Part.LineSegment(App.Vector(-73, 53.7, 0), App.Vector(-73, 31, 0)), False)
sketch2.addGeometry(Part.LineSegment(App.Vector(-73, 31, 0), App.Vector(-5, 31, 0)), False)
sketch2.addGeometry(Part.ArcOfCircle(Part.Circle(App.Vector(-5, 33, 0), App.Vector(0, 0, 1), 2), math.radians(-90), math.radians(0)), False)
sketch2.addGeometry(Part.LineSegment(App.Vector(-3, 33, 0), App.Vector(-3, 33.8, 0)), False)
sketch2.addGeometry(Part.ArcOfCircle(Part.Circle(App.Vector(0, 33.8, 0), App.Vector(0, 0, 1), 3), math.radians(0), math.radians(180)), False)
sketch2.addGeometry(Part.LineSegment(App.Vector(3, 33.8, 0), App.Vector(3, 33, 0)), False)
sketch2.addGeometry(Part.ArcOfCircle(Part.Circle(App.Vector(5, 33, 0), App.Vector(0, 0, 1), 2), math.radians(-180), math.radians(-90)), False)
sketch2.addGeometry(Part.LineSegment(App.Vector(63.6, -53.7, 0), App.Vector(63.6, -31, 0)), False)
sketch2.addGeometry(Part.LineSegment(App.Vector(63.6, -31, 0), App.Vector(5, -31, 0)), False)
sketch2.addGeometry(Part.ArcOfCircle(Part.Circle(App.Vector(5, -33, 0), App.Vector(0, 0, 1), 2), math.radians(90), math.radians(180)), False)
sketch2.addGeometry(Part.LineSegment(App.Vector(3, -33, 0), App.Vector(3, -33.8, 0)), False)
sketch2.addGeometry(Part.ArcOfCircle(Part.Circle(App.Vector(0, -33.8, 0), App.Vector(0, 0, 1), 3), math.radians(180), math.radians(360)), False)
sketch2.addGeometry(Part.LineSegment(App.Vector(-3, -33.8, 0), App.Vector(-3, -33, 0)), False)
sketch2.addGeometry(Part.ArcOfCircle(Part.Circle(App.Vector(-5, -33, 0), App.Vector(0, 0, 1), 2), math.radians(0), math.radians(90)), False)
sketch2.addGeometry(Part.LineSegment(App.Vector(-5, -31, 0), App.Vector(-73, -31, 0)), False)
sketch2.addGeometry(Part.LineSegment(App.Vector(-73, -31, 0), App.Vector(-73, -53.7, 0)), False)
sketch2.addGeometry(Part.LineSegment(App.Vector(-73, -53.7, 0), App.Vector(63.6, -53.7, 0)), False)
sketch2.addConstraint(Sketcher.Constraint("Coincident", 0, 2, 1, 1))
sketch2.addConstraint(Sketcher.Constraint("Coincident", 1, 2, 2, 1))
sketch2.addConstraint(Sketcher.Constraint("Coincident", 2, 2, 3, 1))
sketch2.addConstraint(Sketcher.Constraint("Coincident", 3, 2, 4, 1))
sketch2.addConstraint(Sketcher.Constraint("Tangent", 4, 2, 5, 1))
sketch2.addConstraint(Sketcher.Constraint("Tangent", 5, 2, 6, 1))
sketch2.addConstraint(Sketcher.Constraint("Tangent", 6, 2, 7, 2))
sketch2.addConstraint(Sketcher.Constraint("Tangent", 7, 1, 8, 1))
sketch2.addConstraint(Sketcher.Constraint("Tangent", 8, 2, 9, 1))
sketch2.addConstraint(Sketcher.Constraint("Tangent", 9, 2, 0, 1))
sketch2.addConstraint(Sketcher.Constraint("Coincident", 10, 2, 11, 1))
sketch2.addConstraint(Sketcher.Constraint("Tangent", 11, 2, 12, 1))
sketch2.addConstraint(Sketcher.Constraint("Tangent", 12, 2, 13, 1))
sketch2.addConstraint(Sketcher.Constraint("Tangent", 13, 2, 14, 2))
sketch2.addConstraint(Sketcher.Constraint("Tangent", 14, 1, 15, 1))
sketch2.addConstraint(Sketcher.Constraint("Tangent", 15, 2, 16, 1))
sketch2.addConstraint(Sketcher.Constraint("Tangent", 16, 2, 17, 1))
sketch2.addConstraint(Sketcher.Constraint("Coincident", 17, 2, 18, 1))
sketch2.addConstraint(Sketcher.Constraint("Coincident", 18, 2, 19, 1))
sketch2.addConstraint(Sketcher.Constraint("Coincident", 19, 2, 10, 1))
sketch2.addConstraint(Sketcher.Constraint("Horizontal", 0))
sketch2.addConstraint(Sketcher.Constraint("Vertical", 1))
sketch2.addConstraint(Sketcher.Constraint("Horizontal", 2))
sketch2.addConstraint(Sketcher.Constraint("Vertical", 3))
sketch2.addConstraint(Sketcher.Constraint("Horizontal", 4))
sketch2.addConstraint(Sketcher.Constraint("Vertical", 6))
sketch2.addConstraint(Sketcher.Constraint("Vertical", 8))
sketch2.addConstraint(Sketcher.Constraint("Vertical", 10))
sketch2.addConstraint(Sketcher.Constraint("Horizontal", 11))
sketch2.addConstraint(Sketcher.Constraint("Vertical", 13))
sketch2.addConstraint(Sketcher.Constraint("Vertical", 15))
sketch2.addConstraint(Sketcher.Constraint("Horizontal", 17))
sketch2.addConstraint(Sketcher.Constraint("Vertical", 18))
sketch2.addConstraint(Sketcher.Constraint("Horizontal", 19))
sketch2.addConstraint(Sketcher.Constraint("Equal", 5, 9))
sketch2.addConstraint(Sketcher.Constraint("Equal", 9, 12))
sketch2.addConstraint(Sketcher.Constraint("Equal", 7, 14))
sketch2.addConstraint(Sketcher.Constraint("Equal", 12, 16))
sketch2.addConstraint(Sketcher.Constraint("Symmetric", 5, 3, 12, 3, -1, 1))
sketch2.addConstraint(Sketcher.Constraint("Symmetric", 5, 3, 9, 3, -2))
sketch2.addConstraint(Sketcher.Constraint("Symmetric", 3, 2, 17, 2, -1))
sketch2.addConstraint(Sketcher.Constraint("Symmetric", 1, 2, 19, 2, -1))
sketch2.addConstraint(Sketcher.Constraint("Equal", 8, 13))
sketch2.addConstraint(Sketcher.Constraint("Radius", 5, Q("2 mm")))
sketch2.addConstraint(Sketcher.Constraint("Radius", 7, Q("3 mm")))
sketch2.addConstraint(Sketcher.Constraint("DistanceY", 6, 1, 6, 2, Q("0.8 mm")))
sketch2.addConstraint(Sketcher.Constraint("DistanceY", -1, 1, 5, 3, Q("33 mm")))
sketch2.addConstraint(Sketcher.Constraint("DistanceX", 0, 1, 0, 2, Q("58.557901 mm")))
sketch2.addConstraint(Sketcher.Constraint("DistanceY", 1, 1, 1, 2, Q("22.694218 mm")))
sketch2.addConstraint(Sketcher.Constraint("DistanceX", 2, 2, 2, 1, Q("136.568233 mm")))
pocket1 = body.newObject("PartDesign::Pocket", "Pocket")
pocket1.Profile = sketch2
pocket1.Length = 5.1
pocket1.Reversed = True

# Sketch on XZ plane
sketch3 = body.newObject("Sketcher::SketchObject", "Sketch002")
sketch3.AttachmentSupport = (doc.getObject("XZ_Plane"), [""])
sketch3.MapMode = "FlatFace"
sketch3.AttachmentOffset = App.Placement(App.Vector(0, 0, 9.6), App.Rotation())
add_polygon(sketch3, [(-45, 28), (-45, -28), (45, -28), (45, 28)])  # lines 0-3
sketch3.addConstraint(Sketcher.Constraint("Vertical", 0))
sketch3.addConstraint(Sketcher.Constraint("Horizontal", 1))
sketch3.addConstraint(Sketcher.Constraint("Vertical", 2))
sketch3.addConstraint(Sketcher.Constraint("Horizontal", 3))
sketch3.addConstraint(Sketcher.Constraint("Symmetric", 0, 2, 2, 2, -1, 1))
sketch3.addConstraint(Sketcher.Constraint("DistanceX", 1, 1, 1, 2, Q("90 mm")))
sketch3.addConstraint(Sketcher.Constraint("DistanceY", 0, 2, 0, 1, Q("57 mm")))
pocket2 = body.newObject("PartDesign::Pocket", "Pocket001")
pocket2.Profile = sketch3
pocket2.Length = 7.1
doc.recompute()

fillet = body.newObject("PartDesign::Fillet", "Fillet")
fillet.Base = (pocket2, edges_at(pocket2, [
    (45, -6.05, 28.5),
    (45, -6.05, -28.5),
    (-45, -6.05, -28.5),
    (-45, -6.05, 28.5),
]))
fillet.Radius = 3
doc.recompute()

fillet2 = body.newObject("PartDesign::Fillet", "Fillet001")
fillet2.Base = (fillet, edges_at(fillet, [
    (0, -2.5, -28.5),
    (-45, -2.5, 0),
    (45, -2.5, 0),
    (0, -2.5, 28.5),
    (44.121, -2.5, 27.621),
    (44.121, -2.5, -27.621),
    (-44.121, -2.5, 27.621),
    (-44.121, -2.5, -27.621),
]))
fillet2.Radius = 1

# Sketch on XZ plane
sketch4 = body.newObject("Sketcher::SketchObject", "Sketch003")
sketch4.AttachmentSupport = (doc.getObject("XZ_Plane"), [""])
sketch4.MapMode = "FlatFace"
sketch4.AttachmentOffset = App.Placement(App.Vector(0, 0, 2.5), App.Rotation())
add_polygon(sketch4, [(-39, 24), (-39, 12), (-27, 12), (-27, 24)])  # lines 0-3
add_polygon(sketch4, [(-23, 24), (-23, 12), (-11, 12), (-11, 24)])  # lines 4-7
add_polygon(sketch4, [(-6, 24), (-6, 12), (6, 12), (6, 24)])  # lines 8-11
add_polygon(sketch4, [(10, 24), (10, 12), (22, 12), (22, 24)])  # lines 12-15
add_polygon(sketch4, [(27, 24), (27, 12), (39, 12), (39, 24)])  # lines 16-19
add_polygon(sketch4, [(-23, 6), (-23, -6), (-11, -6), (-11, 6)])  # lines 20-23
add_polygon(sketch4, [(-6, 6), (-6, -6), (6, -6), (6, 6)])  # lines 24-27
add_polygon(sketch4, [(10, 6), (10, -6), (22, -6), (22, 6)])  # lines 28-31
add_polygon(sketch4, [(27, 6), (27, -6), (39, -6), (39, 6)])  # lines 32-35
add_polygon(sketch4, [(-23, -12), (-23, -24), (-11, -24), (-11, -12)])  # lines 36-39
add_polygon(sketch4, [(-6, -12), (-6, -24), (6, -24), (6, -12)])  # lines 40-43
add_polygon(sketch4, [(10, -12), (10, -24), (22, -24), (22, -12)])  # lines 44-47
add_polygon(sketch4, [(27, -12), (27, -24), (39, -24), (39, -12)])  # lines 48-51
add_polygon(sketch4, [(-39, 6), (-39, -6), (-27, -6), (-27, 6)])  # lines 52-55
add_polygon(sketch4, [(-39, -12), (-39, -24), (-27, -24), (-27, -12)])  # lines 56-59
sketch4.addConstraint(Sketcher.Constraint("Vertical", 0))
sketch4.addConstraint(Sketcher.Constraint("Horizontal", 1))
sketch4.addConstraint(Sketcher.Constraint("Vertical", 2))
sketch4.addConstraint(Sketcher.Constraint("Horizontal", 3))
sketch4.addConstraint(Sketcher.Constraint("Vertical", 4))
sketch4.addConstraint(Sketcher.Constraint("Horizontal", 5))
sketch4.addConstraint(Sketcher.Constraint("Vertical", 6))
sketch4.addConstraint(Sketcher.Constraint("Horizontal", 7))
sketch4.addConstraint(Sketcher.Constraint("Vertical", 8))
sketch4.addConstraint(Sketcher.Constraint("Horizontal", 9))
sketch4.addConstraint(Sketcher.Constraint("Vertical", 10))
sketch4.addConstraint(Sketcher.Constraint("Horizontal", 11))
sketch4.addConstraint(Sketcher.Constraint("Vertical", 12))
sketch4.addConstraint(Sketcher.Constraint("Horizontal", 13))
sketch4.addConstraint(Sketcher.Constraint("Vertical", 14))
sketch4.addConstraint(Sketcher.Constraint("Horizontal", 15))
sketch4.addConstraint(Sketcher.Constraint("Vertical", 16))
sketch4.addConstraint(Sketcher.Constraint("Horizontal", 17))
sketch4.addConstraint(Sketcher.Constraint("Vertical", 18))
sketch4.addConstraint(Sketcher.Constraint("Horizontal", 19))
sketch4.addConstraint(Sketcher.Constraint("Vertical", 20))
sketch4.addConstraint(Sketcher.Constraint("Horizontal", 21))
sketch4.addConstraint(Sketcher.Constraint("Vertical", 22))
sketch4.addConstraint(Sketcher.Constraint("Horizontal", 23))
sketch4.addConstraint(Sketcher.Constraint("Vertical", 24))
sketch4.addConstraint(Sketcher.Constraint("Horizontal", 25))
sketch4.addConstraint(Sketcher.Constraint("Vertical", 26))
sketch4.addConstraint(Sketcher.Constraint("Horizontal", 27))
sketch4.addConstraint(Sketcher.Constraint("Vertical", 28))
sketch4.addConstraint(Sketcher.Constraint("Horizontal", 29))
sketch4.addConstraint(Sketcher.Constraint("Vertical", 30))
sketch4.addConstraint(Sketcher.Constraint("Horizontal", 31))
sketch4.addConstraint(Sketcher.Constraint("Vertical", 32))
sketch4.addConstraint(Sketcher.Constraint("Horizontal", 33))
sketch4.addConstraint(Sketcher.Constraint("Vertical", 34))
sketch4.addConstraint(Sketcher.Constraint("Horizontal", 35))
sketch4.addConstraint(Sketcher.Constraint("Vertical", 36))
sketch4.addConstraint(Sketcher.Constraint("Horizontal", 37))
sketch4.addConstraint(Sketcher.Constraint("Vertical", 38))
sketch4.addConstraint(Sketcher.Constraint("Horizontal", 39))
sketch4.addConstraint(Sketcher.Constraint("Vertical", 40))
sketch4.addConstraint(Sketcher.Constraint("Horizontal", 41))
sketch4.addConstraint(Sketcher.Constraint("Vertical", 42))
sketch4.addConstraint(Sketcher.Constraint("Horizontal", 43))
sketch4.addConstraint(Sketcher.Constraint("Vertical", 44))
sketch4.addConstraint(Sketcher.Constraint("Horizontal", 45))
sketch4.addConstraint(Sketcher.Constraint("Vertical", 46))
sketch4.addConstraint(Sketcher.Constraint("Horizontal", 47))
sketch4.addConstraint(Sketcher.Constraint("Vertical", 48))
sketch4.addConstraint(Sketcher.Constraint("Horizontal", 49))
sketch4.addConstraint(Sketcher.Constraint("Vertical", 50))
sketch4.addConstraint(Sketcher.Constraint("Horizontal", 51))
sketch4.addConstraint(Sketcher.Constraint("Vertical", 52))
sketch4.addConstraint(Sketcher.Constraint("Horizontal", 53))
sketch4.addConstraint(Sketcher.Constraint("Vertical", 54))
sketch4.addConstraint(Sketcher.Constraint("Horizontal", 55))
sketch4.addConstraint(Sketcher.Constraint("Vertical", 56))
sketch4.addConstraint(Sketcher.Constraint("Horizontal", 57))
sketch4.addConstraint(Sketcher.Constraint("Vertical", 58))
sketch4.addConstraint(Sketcher.Constraint("Horizontal", 59))
sketch4.addConstraint(Sketcher.Constraint("Symmetric", 7, 2, 36, 2, -1))
sketch4.addConstraint(Sketcher.Constraint("Symmetric", 5, 2, 38, 2, -1))
sketch4.addConstraint(Sketcher.Constraint("Symmetric", 11, 2, 40, 2, -1))
sketch4.addConstraint(Sketcher.Constraint("Symmetric", 9, 2, 42, 2, -1))
sketch4.addConstraint(Sketcher.Constraint("Symmetric", 15, 2, 44, 2, -1))
sketch4.addConstraint(Sketcher.Constraint("Symmetric", 13, 2, 46, 2, -1))
sketch4.addConstraint(Sketcher.Constraint("Symmetric", 19, 2, 48, 2, -1))
sketch4.addConstraint(Sketcher.Constraint("Symmetric", 17, 2, 50, 2, -1))
sketch4.addConstraint(Sketcher.Constraint("Symmetric", 3, 2, 56, 2, -1))
sketch4.addConstraint(Sketcher.Constraint("Symmetric", 1, 2, 58, 2, -1))
sketch4.addConstraint(Sketcher.Constraint("Horizontal", 1, 2, 4, 2))
sketch4.addConstraint(Sketcher.Constraint("Horizontal", 3, 2, 6, 2))
sketch4.addConstraint(Sketcher.Constraint("Horizontal", 5, 2, 8, 2))
sketch4.addConstraint(Sketcher.Constraint("Horizontal", 7, 2, 10, 2))
sketch4.addConstraint(Sketcher.Constraint("Horizontal", 9, 2, 12, 2))
sketch4.addConstraint(Sketcher.Constraint("Horizontal", 11, 2, 14, 2))
sketch4.addConstraint(Sketcher.Constraint("Horizontal", 13, 2, 16, 2))
sketch4.addConstraint(Sketcher.Constraint("Horizontal", 15, 2, 18, 2))
sketch4.addConstraint(Sketcher.Constraint("Horizontal", 21, 2, 24, 2))
sketch4.addConstraint(Sketcher.Constraint("Horizontal", 23, 2, 26, 2))
sketch4.addConstraint(Sketcher.Constraint("Horizontal", 25, 2, 28, 2))
sketch4.addConstraint(Sketcher.Constraint("Horizontal", 27, 2, 30, 2))
sketch4.addConstraint(Sketcher.Constraint("Horizontal", 29, 2, 32, 2))
sketch4.addConstraint(Sketcher.Constraint("Horizontal", 31, 2, 34, 2))
sketch4.addConstraint(Sketcher.Constraint("Horizontal", 33, 2, 52, 2))
sketch4.addConstraint(Sketcher.Constraint("Horizontal", 35, 2, 54, 2))
sketch4.addConstraint(Sketcher.Constraint("Vertical", 7, 2, 20, 2))
sketch4.addConstraint(Sketcher.Constraint("Vertical", 6, 2, 21, 2))
sketch4.addConstraint(Sketcher.Constraint("Vertical", 11, 2, 24, 2))
sketch4.addConstraint(Sketcher.Constraint("Vertical", 10, 2, 25, 2))
sketch4.addConstraint(Sketcher.Constraint("Vertical", 15, 2, 28, 2))
sketch4.addConstraint(Sketcher.Constraint("Vertical", 14, 2, 29, 2))
sketch4.addConstraint(Sketcher.Constraint("Vertical", 19, 2, 32, 2))
sketch4.addConstraint(Sketcher.Constraint("Vertical", 18, 2, 33, 2))
sketch4.addConstraint(Sketcher.Constraint("Vertical", 3, 2, 52, 2))
sketch4.addConstraint(Sketcher.Constraint("Vertical", 2, 2, 53, 2))
sketch4.addConstraint(Sketcher.Constraint("Equal", 3, 5))
sketch4.addConstraint(Sketcher.Constraint("Equal", 7, 9))
sketch4.addConstraint(Sketcher.Constraint("Equal", 11, 13))
sketch4.addConstraint(Sketcher.Constraint("Equal", 15, 17))
sketch4.addConstraint(Sketcher.Constraint("Equal", 59, 0))
sketch4.addConstraint(Sketcher.Constraint("Equal", 18, 20))
sketch4.addConstraint(Sketcher.Constraint("DistanceX", 1, 1, 1, 2, Q("12 mm")))
sketch4.addConstraint(Sketcher.Constraint("DistanceX", 0, 2, -1, 1, Q("39 mm")))
sketch4.addConstraint(Sketcher.Constraint("DistanceY", -1, 1, 0, 2, Q("12 mm")))
sketch4.addConstraint(Sketcher.Constraint("DistanceY", 20, 2, -1, 1, Q("6 mm")))
sketch4.addConstraint(Sketcher.Constraint("DistanceX", 4, 2, -1, 1, Q("22.6 mm")))
sketch4.addConstraint(Sketcher.Constraint("DistanceX", 8, 2, -1, 1, Q("6.2 mm")))
sketch4.addConstraint(Sketcher.Constraint("DistanceX", -1, 1, 12, 2, Q("10.2 mm")))
sketch4.addConstraint(Sketcher.Constraint("DistanceX", -1, 1, 16, 2, Q("26.6 mm")))
pocket3 = body.newObject("PartDesign::Pocket", "Pocket002")
pocket3.Profile = sketch4
pocket3.Type = "ThroughAll"

doc.recompute()
